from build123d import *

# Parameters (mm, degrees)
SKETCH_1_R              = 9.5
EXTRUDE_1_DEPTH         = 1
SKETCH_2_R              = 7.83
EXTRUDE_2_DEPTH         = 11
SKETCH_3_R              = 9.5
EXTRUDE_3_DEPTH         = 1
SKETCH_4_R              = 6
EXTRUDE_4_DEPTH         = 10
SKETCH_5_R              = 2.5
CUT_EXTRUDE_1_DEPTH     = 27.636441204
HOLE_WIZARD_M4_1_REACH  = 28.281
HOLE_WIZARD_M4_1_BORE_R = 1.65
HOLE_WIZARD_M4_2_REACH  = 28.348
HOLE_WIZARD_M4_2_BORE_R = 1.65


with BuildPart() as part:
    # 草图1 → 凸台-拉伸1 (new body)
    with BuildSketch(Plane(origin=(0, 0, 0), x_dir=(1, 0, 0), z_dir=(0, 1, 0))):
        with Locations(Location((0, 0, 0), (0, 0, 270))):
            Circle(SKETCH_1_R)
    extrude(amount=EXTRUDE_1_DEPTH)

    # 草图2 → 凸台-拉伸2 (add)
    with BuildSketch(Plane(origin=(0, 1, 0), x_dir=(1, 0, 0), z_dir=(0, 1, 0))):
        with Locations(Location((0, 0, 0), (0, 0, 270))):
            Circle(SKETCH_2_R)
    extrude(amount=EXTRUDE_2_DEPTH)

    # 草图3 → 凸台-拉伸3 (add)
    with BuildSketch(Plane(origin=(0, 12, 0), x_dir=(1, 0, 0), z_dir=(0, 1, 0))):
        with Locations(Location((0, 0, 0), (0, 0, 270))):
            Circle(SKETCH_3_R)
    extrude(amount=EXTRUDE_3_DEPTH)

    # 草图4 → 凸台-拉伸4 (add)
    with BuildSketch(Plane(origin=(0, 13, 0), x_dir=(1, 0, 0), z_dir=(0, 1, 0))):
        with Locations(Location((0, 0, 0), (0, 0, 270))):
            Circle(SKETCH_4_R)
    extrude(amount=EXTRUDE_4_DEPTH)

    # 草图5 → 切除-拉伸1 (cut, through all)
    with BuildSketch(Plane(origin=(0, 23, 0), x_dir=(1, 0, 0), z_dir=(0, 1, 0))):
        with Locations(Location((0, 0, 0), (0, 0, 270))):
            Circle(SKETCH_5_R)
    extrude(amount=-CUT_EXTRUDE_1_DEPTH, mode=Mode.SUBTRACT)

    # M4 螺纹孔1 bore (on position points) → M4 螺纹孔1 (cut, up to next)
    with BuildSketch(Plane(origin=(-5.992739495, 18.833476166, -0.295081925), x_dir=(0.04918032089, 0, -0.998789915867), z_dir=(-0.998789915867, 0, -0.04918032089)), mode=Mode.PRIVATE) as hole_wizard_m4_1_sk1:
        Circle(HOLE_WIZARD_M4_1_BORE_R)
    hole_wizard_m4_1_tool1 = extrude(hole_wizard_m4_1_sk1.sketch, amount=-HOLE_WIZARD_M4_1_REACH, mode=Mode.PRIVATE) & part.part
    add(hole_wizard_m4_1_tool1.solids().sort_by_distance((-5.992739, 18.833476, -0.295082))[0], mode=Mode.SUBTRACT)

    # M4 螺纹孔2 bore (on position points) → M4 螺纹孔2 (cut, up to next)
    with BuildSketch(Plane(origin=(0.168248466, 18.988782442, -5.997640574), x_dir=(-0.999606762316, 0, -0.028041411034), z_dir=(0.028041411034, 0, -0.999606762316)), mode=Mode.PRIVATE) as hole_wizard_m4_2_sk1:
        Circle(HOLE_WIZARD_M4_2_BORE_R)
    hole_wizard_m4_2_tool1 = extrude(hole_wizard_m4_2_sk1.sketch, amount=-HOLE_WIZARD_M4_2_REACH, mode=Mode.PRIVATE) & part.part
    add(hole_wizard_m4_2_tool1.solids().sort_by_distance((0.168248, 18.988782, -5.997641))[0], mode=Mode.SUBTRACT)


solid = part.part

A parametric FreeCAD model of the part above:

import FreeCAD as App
import Part
import Sketcher
Q = App.Units.Quantity

doc = App.newDocument("Part")
params = doc.addObject("Spreadsheet::Sheet", "Params")
for row, (alias, value) in enumerate([
    ("sketch1_diameter", "19 mm"),
    ("pad1_length", "1 mm"),
    ("sketch2_diameter", "15.66 mm"),
    ("pad2_length", "11 mm"),
    ("sketch3_diameter", "19 mm"),
    ("pad3_length", "1 mm"),
    ("sketch4_diameter", "12 mm"),
    ("pad4_length", "10 mm"),
    ("sketch5_diameter", "5 mm"),
    ("sketch6_diameter", "3.3 mm"),
    ("sketch7_diameter", "3.3 mm"),
], start=1):
    params.set(f"A{row}", alias)
    params.set(f"B{row}", "=" + value)
    params.setAlias(f"B{row}", alias)

body = doc.addObject("PartDesign::Body", "Body")

# Sketch on XZ plane
sketch1 = doc.addObject("Sketcher::SketchObject", "Sketch")
body.addObject(sketch1)
sketch1.AttachmentSupport = (doc.XZ_Plane, [""])
sketch1.MapMode = "FlatFace"
sketch1.addGeometry(Part.Circle(App.Vector(0, 0, 0), App.Vector(0, 0, 1), 10), False)
sketch1.addConstraint(Sketcher.Constraint("Coincident", 0, 3, -1, 1))
sketch1.addConstraint(Sketcher.Constraint("Diameter", 0, Q("19 mm")))
sketch1.setExpression("Constraints[1]", "Params.sketch1_diameter")
pad1 = doc.addObject("PartDesign::Pad", "Pad")
body.addObject(pad1)
pad1.Profile = sketch1
pad1.setExpression("Length", "Params.pad1_length")
pad1.Reversed = True

# Sketch on XZ plane
sketch2 = doc.addObject("Sketcher::SketchObject", "Sketch001")
body.addObject(sketch2)
sketch2.AttachmentSupport = (doc.XZ_Plane, [""])
sketch2.MapMode = "FlatFace"
sketch2.AttachmentOffset = App.Placement(App.Vector(0, 0, -1), App.Rotation())
sketch2.addGeometry(Part.Circle(App.Vector(0, 0, 0), App.Vector(0, 0, 1), 8), False)
sketch2.addConstraint(Sketcher.Constraint("Coincident", 0, 3, -1, 1))
sketch2.addConstraint(Sketcher.Constraint("Diameter", 0, Q("15.66 mm")))
sketch2.setExpression("Constraints[1]", "Params.sketch2_diameter")
pad2 = doc.addObject("PartDesign::Pad", "Pad001")
body.addObject(pad2)
pad2.Profile = sketch2
pad2.setExpression("Length", "Params.pad2_length")
pad2.Reversed = True

# Sketch on XZ plane
sketch3 = doc.addObject("Sketcher::SketchObject", "Sketch002")
body.addObject(sketch3)
sketch3.AttachmentSupport = (doc.XZ_Plane, [""])
sketch3.MapMode = "FlatFace"
sketch3.AttachmentOffset = App.Placement(App.Vector(0, 0, -12), App.Rotation())
sketch3.addGeometry(Part.Circle(App.Vector(0, 0, 0), App.Vector(0, 0, 1), 10), False)
sketch3.addConstraint(Sketcher.Constraint("Coincident", 0, 3, -1, 1))
sketch3.addConstraint(Sketcher.Constraint("Diameter", 0, Q("19 mm")))
sketch3.setExpression("Constraints[1]", "Params.sketch3_diameter")
pad3 = doc.addObject("PartDesign::Pad", "Pad002")
body.addObject(pad3)
pad3.Profile = sketch3
pad3.setExpression("Length", "Params.pad3_length")
pad3.Reversed = True

# Sketch on XZ plane
sketch4 = doc.addObject("Sketcher::SketchObject", "Sketch003")
body.addObject(sketch4)
sketch4.AttachmentSupport = (doc.XZ_Plane, [""])
sketch4.MapMode = "FlatFace"
sketch4.AttachmentOffset = App.Placement(App.Vector(0, 0, -13), App.Rotation())
sketch4.addGeometry(Part.Circle(App.Vector(0, 0, 0), App.Vector(0, 0, 1), 6), False)
sketch4.addConstraint(Sketcher.Constraint("Coincident", 0, 3, -1, 1))
sketch4.addConstraint(Sketcher.Constraint("Diameter", 0, Q("12 mm")))
sketch4.setExpression("Constraints[1]", "Params.sketch4_diameter")
pad4 = doc.addObject("PartDesign::Pad", "Pad003")
body.addObject(pad4)
pad4.Profile = sketch4
pad4.setExpression("Length", "Params.pad4_length")
pad4.Reversed = True

# Sketch on XZ plane
sketch5 = doc.addObject("Sketcher::SketchObject", "Sketch004")
body.addObject(sketch5)
sketch5.AttachmentSupport = (doc.XZ_Plane, [""])
sketch5.MapMode = "FlatFace"
sketch5.AttachmentOffset = App.Placement(App.Vector(0, 0, -23), App.Rotation())
sketch5.addGeometry(Part.Circle(App.Vector(0, 0, 0), App.Vector(0, 0, 1), 2.5), False)
sketch5.addConstraint(Sketcher.Constraint("Coincident", 0, 3, -1, 1))
sketch5.addConstraint(Sketcher.Constraint("Diameter", 0, Q("5 mm")))
sketch5.setExpression("Constraints[1]", "Params.sketch5_diameter")
pocket1 = doc.addObject("PartDesign::Pocket", "Pocket")
body.addObject(pocket1)
pocket1.Profile = sketch5
pocket1.Type = "ThroughAll"
pocket1.Reversed = True

# Sketch on an angled plane
sketch6 = doc.addObject("Sketcher::SketchObject", "Sketch005")
body.addObject(sketch6)
sketch6.Placement = App.Placement(App.Vector(-5.992739, 18.833476, -0.295082), App.Rotation(App.Vector(0.049180321, 0, -0.998789916), App.Vector(0, -1, 0), App.Vector(-0.998789916, 0, -0.049180321), "ZXY"))
sketch6.addGeometry(Part.Circle(App.Vector(0, 0, 0), App.Vector(0, 0, 1), 1.6), False)
sketch6.addConstraint(Sketcher.Constraint("Coincident", 0, 3, -1, 1))
sketch6.addConstraint(Sketcher.Constraint("Diameter", 0, Q("3.3 mm")))
sketch6.setExpression("Constraints[1]", "Params.sketch6_diameter")
pocket2 = doc.addObject("PartDesign::Pocket", "Pocket001")
body.addObject(pocket2)
pocket2.Profile = sketch6
pocket2.Type = "UpToFirst"

# Sketch on an angled plane
sketch7 = doc.addObject("Sketcher::SketchObject", "Sketch006")
body.addObject(sketch7)
sketch7.Placement = App.Placement(App.Vector(0.168248, 18.988782, -5.997641), App.Rotation(App.Vector(-0.999606762, 0, -0.028041411), App.Vector(0, 0.999999999, 0), App.Vector(0.028041411, 0, -0.999606762), "ZXY"))
sketch7.addGeometry(Part.Circle(App.Vector(0, 0, 0), App.Vector(0, 0, 1), 1.6), False)
sketch7.addConstraint(Sketcher.Constraint("Coincident", 0, 3, -1, 1))
sketch7.addConstraint(Sketcher.Constraint("Diameter", 0, Q("3.3 mm")))
sketch7.setExpression("Constraints[1]", "Params.sketch7_diameter")
pocket3 = doc.addObject("PartDesign::Pocket", "Pocket002")
body.addObject(pocket3)
pocket3.Profile = sketch7
pocket3.Type = "UpToFirst"

doc.recompute()
